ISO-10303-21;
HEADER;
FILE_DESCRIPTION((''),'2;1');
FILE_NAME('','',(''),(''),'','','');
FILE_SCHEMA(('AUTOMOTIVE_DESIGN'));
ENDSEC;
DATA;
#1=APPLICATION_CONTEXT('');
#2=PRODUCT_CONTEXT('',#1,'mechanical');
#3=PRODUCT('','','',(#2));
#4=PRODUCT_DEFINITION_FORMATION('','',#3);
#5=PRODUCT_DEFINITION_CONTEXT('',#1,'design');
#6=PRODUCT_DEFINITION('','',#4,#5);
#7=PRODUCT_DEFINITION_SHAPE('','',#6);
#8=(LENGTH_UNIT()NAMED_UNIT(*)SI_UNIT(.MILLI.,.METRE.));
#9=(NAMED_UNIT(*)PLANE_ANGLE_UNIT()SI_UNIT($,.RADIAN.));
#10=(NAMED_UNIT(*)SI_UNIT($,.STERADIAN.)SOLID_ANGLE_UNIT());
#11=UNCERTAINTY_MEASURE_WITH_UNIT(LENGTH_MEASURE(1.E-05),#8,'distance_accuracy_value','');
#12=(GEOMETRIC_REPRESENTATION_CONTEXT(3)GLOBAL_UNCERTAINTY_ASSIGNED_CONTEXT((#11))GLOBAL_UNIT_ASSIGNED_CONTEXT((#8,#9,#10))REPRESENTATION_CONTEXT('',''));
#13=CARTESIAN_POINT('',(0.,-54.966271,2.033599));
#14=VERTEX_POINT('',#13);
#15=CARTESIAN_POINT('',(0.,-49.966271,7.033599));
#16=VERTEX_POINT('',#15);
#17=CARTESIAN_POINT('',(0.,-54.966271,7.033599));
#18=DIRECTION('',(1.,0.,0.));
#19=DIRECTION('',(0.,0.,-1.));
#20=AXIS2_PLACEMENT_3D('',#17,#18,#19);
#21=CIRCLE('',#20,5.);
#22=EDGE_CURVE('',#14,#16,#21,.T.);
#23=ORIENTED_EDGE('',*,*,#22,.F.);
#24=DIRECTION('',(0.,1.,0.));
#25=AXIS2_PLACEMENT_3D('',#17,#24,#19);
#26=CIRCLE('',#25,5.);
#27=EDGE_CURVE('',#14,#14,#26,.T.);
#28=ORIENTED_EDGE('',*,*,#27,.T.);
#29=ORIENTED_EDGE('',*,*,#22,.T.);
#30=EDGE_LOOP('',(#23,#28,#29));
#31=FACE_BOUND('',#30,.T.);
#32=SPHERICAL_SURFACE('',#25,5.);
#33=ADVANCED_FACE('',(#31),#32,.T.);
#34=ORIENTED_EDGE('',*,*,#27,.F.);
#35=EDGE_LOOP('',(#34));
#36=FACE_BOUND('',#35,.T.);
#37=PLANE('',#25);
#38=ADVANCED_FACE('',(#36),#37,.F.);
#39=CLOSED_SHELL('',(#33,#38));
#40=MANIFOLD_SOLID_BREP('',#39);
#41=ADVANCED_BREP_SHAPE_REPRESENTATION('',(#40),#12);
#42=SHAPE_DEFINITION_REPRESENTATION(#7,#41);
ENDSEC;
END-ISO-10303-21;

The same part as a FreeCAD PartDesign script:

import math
import FreeCAD as App
import Part
import Sketcher
from FreeCAD import Vector

doc = App.newDocument("Part")
body = doc.addObject("PartDesign::Body", "Body")

# Sketch on YZ plane
sketch1 = body.newObject("Sketcher::SketchObject", "Sketch")
sketch1.AttachmentSupport = (doc.getObject("YZ_Plane"), [""])
sketch1.MapMode = "FlatFace"
sketch1.addGeometry(Part.LineSegment(Vector(-54.966271, 7.033599, 0), Vector(-54.966271, 2.033599, 0)), False)
sketch1.addGeometry(Part.ArcOfCircle(Part.Circle(Vector(-54.966271, 7.033599, 0), Vector(0, 0, 1), 5), math.radians(-90), math.radians(0)), False)
sketch1.addGeometry(Part.LineSegment(Vector(-49.966271, 7.033599, 0), Vector(-54.966271, 7.033599, 0)), False)
sketch1.addGeometry(Part.LineSegment(Vector(-54.966271, 7.033599, 0), Vector(-49.966271, 7.033599, 0)), True)  # axis
sketch1.addConstraint(Sketcher.Constraint("Coincident", 0, 2, 1, 1))
sketch1.addConstraint(Sketcher.Constraint("Coincident", 1, 2, 2, 1))
sketch1.addConstraint(Sketcher.Constraint("Coincident", 2, 2, 0, 1))
sketch1.addConstraint(Sketcher.Constraint("Vertical", 0))
sketch1.addConstraint(Sketcher.Constraint("Horizontal", 2))
sketch1.addConstraint(Sketcher.Constraint("Horizontal", 3))
sketch1.addConstraint(Sketcher.Constraint("Coincident", 2, 2, 1, 3))
sketch1.addConstraint(Sketcher.Constraint("Coincident", 3, 1, 1, 3))
sketch1.addConstraint(Sketcher.Constraint("Equal", 2, 3))
sketch1.addConstraint(Sketcher.Constraint("Radius", 1, 5.0))
sketch1.addConstraint(Sketcher.Constraint("DistanceY", -1, 1, 1, 3, 7.033599))
sketch1.addConstraint(Sketcher.Constraint("DistanceX", 1, 3, -1, 1, 54.966271))
revolution = body.newObject("PartDesign::Revolution", "Revolution")
revolution.Profile = sketch1
revolution.ReferenceAxis = (sketch1, ["Axis0"])
revolution.Angle = 360

doc.recompute()
